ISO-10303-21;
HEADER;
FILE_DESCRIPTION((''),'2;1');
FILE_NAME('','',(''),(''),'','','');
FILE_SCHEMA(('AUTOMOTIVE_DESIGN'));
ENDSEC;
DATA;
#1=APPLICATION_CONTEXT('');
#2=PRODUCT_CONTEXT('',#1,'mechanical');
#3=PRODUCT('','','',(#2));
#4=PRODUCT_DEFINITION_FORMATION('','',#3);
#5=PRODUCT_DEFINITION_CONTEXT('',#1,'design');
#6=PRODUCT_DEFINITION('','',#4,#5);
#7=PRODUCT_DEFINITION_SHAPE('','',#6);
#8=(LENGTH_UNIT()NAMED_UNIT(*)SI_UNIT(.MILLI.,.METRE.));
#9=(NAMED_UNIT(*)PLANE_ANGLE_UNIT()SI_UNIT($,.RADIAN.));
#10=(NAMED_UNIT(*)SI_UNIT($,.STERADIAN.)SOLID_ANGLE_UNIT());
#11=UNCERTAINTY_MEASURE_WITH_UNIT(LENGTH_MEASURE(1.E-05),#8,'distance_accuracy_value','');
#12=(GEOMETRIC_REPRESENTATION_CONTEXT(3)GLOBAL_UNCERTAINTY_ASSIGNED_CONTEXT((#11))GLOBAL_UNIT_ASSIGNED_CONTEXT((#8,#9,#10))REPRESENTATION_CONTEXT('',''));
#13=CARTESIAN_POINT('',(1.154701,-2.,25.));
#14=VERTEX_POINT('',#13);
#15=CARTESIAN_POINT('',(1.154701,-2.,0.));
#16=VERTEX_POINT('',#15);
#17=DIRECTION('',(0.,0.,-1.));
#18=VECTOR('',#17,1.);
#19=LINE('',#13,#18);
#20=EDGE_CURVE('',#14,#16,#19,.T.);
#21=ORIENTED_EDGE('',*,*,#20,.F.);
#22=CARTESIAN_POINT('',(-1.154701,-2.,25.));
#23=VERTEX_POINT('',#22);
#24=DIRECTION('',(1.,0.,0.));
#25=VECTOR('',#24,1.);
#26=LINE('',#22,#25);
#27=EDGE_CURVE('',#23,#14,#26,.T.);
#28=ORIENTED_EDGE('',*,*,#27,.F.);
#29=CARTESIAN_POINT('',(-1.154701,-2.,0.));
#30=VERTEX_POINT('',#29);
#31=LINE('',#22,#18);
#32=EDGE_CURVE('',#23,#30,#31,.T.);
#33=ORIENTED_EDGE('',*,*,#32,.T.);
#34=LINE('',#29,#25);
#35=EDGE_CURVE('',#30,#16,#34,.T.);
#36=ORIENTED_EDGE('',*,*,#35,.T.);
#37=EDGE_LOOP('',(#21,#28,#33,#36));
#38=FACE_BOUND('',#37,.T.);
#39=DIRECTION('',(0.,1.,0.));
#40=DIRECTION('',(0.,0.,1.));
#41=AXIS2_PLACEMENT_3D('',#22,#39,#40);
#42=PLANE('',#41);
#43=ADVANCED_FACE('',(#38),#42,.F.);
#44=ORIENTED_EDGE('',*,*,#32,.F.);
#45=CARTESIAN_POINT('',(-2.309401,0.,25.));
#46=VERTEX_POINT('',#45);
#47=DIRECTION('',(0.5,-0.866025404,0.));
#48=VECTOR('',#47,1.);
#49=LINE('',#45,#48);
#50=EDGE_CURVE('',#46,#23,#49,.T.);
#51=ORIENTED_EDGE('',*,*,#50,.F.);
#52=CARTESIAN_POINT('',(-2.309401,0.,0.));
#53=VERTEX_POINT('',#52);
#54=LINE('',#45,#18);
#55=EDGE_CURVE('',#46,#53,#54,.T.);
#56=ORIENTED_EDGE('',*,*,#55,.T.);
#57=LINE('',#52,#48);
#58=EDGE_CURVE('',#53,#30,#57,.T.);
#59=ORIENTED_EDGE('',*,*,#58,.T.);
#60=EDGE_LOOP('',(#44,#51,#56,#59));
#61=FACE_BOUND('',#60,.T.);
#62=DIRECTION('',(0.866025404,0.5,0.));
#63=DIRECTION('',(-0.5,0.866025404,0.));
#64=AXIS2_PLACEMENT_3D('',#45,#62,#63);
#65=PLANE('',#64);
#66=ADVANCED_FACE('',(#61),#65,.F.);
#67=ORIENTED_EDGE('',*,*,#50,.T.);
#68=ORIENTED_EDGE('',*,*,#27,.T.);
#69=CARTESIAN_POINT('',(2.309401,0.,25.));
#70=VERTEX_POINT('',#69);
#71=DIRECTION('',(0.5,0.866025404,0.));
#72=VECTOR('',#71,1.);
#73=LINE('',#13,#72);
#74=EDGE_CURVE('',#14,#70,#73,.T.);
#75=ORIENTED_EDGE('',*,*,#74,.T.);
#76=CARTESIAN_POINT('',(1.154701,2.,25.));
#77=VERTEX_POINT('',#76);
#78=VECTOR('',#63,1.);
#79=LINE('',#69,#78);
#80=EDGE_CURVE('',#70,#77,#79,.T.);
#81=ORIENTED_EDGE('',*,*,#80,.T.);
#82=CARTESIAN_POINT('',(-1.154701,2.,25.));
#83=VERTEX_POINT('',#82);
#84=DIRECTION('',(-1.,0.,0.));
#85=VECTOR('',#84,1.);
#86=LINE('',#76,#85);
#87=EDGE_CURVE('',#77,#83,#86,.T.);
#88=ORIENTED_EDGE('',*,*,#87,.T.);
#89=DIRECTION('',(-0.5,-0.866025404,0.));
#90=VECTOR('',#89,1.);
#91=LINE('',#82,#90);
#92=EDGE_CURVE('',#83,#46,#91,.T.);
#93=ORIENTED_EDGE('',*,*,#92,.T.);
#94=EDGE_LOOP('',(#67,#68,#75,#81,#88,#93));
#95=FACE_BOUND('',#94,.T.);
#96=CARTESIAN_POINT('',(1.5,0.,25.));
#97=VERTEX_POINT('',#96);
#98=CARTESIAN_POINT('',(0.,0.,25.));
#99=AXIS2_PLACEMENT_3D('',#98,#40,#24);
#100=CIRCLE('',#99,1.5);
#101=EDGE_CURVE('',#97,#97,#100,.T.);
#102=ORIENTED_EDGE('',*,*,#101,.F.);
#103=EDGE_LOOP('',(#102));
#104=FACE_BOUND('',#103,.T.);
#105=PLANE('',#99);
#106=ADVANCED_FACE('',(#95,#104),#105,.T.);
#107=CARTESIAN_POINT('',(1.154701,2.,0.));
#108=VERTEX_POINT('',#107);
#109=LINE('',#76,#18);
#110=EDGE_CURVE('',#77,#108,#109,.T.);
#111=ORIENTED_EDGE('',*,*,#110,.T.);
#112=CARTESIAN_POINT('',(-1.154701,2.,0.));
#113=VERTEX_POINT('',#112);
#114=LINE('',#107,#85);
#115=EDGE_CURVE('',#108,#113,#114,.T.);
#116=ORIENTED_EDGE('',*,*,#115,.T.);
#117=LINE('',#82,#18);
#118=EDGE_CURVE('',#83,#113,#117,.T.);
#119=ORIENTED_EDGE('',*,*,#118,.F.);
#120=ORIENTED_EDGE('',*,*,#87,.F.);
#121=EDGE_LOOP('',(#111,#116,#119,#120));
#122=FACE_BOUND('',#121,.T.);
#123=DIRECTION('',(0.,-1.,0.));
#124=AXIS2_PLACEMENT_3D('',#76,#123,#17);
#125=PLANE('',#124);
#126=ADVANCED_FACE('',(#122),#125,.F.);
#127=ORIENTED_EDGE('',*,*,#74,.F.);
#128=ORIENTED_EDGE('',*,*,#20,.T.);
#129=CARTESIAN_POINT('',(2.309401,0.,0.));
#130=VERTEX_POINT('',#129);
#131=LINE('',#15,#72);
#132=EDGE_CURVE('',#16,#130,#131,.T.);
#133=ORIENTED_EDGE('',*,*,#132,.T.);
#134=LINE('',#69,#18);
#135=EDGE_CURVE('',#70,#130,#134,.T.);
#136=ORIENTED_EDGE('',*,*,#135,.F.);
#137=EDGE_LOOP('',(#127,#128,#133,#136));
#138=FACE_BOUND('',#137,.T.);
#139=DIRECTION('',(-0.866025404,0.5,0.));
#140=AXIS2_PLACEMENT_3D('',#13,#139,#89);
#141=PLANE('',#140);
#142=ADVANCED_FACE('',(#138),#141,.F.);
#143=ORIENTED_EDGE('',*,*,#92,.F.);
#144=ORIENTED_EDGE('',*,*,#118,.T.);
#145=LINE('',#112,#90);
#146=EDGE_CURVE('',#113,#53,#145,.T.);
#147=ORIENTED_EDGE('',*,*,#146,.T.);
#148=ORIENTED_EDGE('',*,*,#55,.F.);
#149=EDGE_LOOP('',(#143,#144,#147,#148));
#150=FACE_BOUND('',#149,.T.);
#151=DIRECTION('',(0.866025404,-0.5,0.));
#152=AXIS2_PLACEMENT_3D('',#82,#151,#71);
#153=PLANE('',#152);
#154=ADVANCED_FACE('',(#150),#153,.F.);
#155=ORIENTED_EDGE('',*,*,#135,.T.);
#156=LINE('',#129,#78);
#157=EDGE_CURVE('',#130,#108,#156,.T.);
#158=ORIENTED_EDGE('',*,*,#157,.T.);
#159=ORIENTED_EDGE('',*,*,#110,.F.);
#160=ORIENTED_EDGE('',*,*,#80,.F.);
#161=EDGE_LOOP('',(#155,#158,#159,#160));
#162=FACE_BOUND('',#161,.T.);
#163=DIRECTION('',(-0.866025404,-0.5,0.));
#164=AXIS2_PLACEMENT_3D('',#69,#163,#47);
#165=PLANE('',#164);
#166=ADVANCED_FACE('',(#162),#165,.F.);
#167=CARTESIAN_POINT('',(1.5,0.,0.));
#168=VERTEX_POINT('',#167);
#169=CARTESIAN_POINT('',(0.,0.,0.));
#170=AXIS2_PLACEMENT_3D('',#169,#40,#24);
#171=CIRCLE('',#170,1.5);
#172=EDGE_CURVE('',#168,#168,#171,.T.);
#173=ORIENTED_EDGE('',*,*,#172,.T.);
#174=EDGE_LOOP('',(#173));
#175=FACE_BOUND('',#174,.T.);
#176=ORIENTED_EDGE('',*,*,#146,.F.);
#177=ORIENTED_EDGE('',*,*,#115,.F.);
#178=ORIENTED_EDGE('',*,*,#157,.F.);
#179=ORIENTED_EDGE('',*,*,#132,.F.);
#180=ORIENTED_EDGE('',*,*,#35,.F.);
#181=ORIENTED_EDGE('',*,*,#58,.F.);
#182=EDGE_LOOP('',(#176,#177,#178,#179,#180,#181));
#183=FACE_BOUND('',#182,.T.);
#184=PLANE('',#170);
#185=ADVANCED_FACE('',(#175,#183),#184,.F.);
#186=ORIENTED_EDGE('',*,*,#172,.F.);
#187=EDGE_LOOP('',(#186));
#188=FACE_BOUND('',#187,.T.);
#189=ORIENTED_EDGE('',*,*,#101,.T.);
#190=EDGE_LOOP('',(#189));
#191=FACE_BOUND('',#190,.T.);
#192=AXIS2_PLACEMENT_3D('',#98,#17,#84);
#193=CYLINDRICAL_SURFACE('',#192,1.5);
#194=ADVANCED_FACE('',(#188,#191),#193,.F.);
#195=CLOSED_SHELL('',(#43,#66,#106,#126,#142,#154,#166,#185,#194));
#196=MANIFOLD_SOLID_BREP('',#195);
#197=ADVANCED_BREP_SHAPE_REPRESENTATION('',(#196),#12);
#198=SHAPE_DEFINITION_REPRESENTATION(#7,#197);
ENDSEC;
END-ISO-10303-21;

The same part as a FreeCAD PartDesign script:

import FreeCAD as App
import Part
import Sketcher

V = App.Vector
Q = App.Units.Quantity

doc = App.newDocument("Part")
body = doc.addObject("PartDesign::Body", "Body")

sketch1 = body.newObject("Sketcher::SketchObject", "Sketch")
sketch1.AttachmentSupport = (doc.getObject("XY_Plane"), [""])
sketch1.MapMode = "FlatFace"
sketch1.addGeometry([
    Part.LineSegment(V(2.3, 0, 0), V(1.2, 2, 0)),
    Part.LineSegment(V(1.2, 2, 0), V(-1.2, 2, 0)),
    Part.LineSegment(V(-1.2, 2, 0), V(-2.3, 0, 0)),
    Part.LineSegment(V(-2.3, 0, 0), V(-1.2, -2, 0)),
    Part.LineSegment(V(-1.2, -2, 0), V(1.2, -2, 0)),
    Part.LineSegment(V(1.2, -2, 0), V(2.3, 0, 0)),
    Part.Circle(V(0, 0, 0), V(0, 0, 1), 1.5),
], False)
sketch1.addConstraint([
    Sketcher.Constraint("Coincident", 0, 2, 1, 1),
    Sketcher.Constraint("Coincident", 1, 2, 2, 1),
    Sketcher.Constraint("Coincident", 2, 2, 3, 1),
    Sketcher.Constraint("Coincident", 3, 2, 4, 1),
    Sketcher.Constraint("Coincident", 4, 2, 5, 1),
    Sketcher.Constraint("Coincident", 5, 2, 0, 1),
    Sketcher.Constraint("Horizontal", 1),
    Sketcher.Constraint("Horizontal", 4),
    Sketcher.Constraint("Coincident", 6, 3, -1, 1),
    Sketcher.Constraint("Symmetric", 0, 2, 3, 2, -1, 1),
    Sketcher.Constraint("Symmetric", 2, 2, 5, 2, -1, 1),
    Sketcher.Constraint("PointOnObject", 2, 2, -1),
    Sketcher.Constraint("Parallel", 2, 5),
    Sketcher.Constraint("Vertical", 1, 2, 3, 2),
    Sketcher.Constraint("Diameter", 6, 3.0),
    Sketcher.Constraint("Angle", 0, Q("120 deg")),
    Sketcher.Constraint("DistanceY", -1, 1, 0, 2, 2.0),
    Sketcher.Constraint("DistanceX", 1, 2, 1, 1, 2.309401),
])
pad1 = body.newObject("PartDesign::Pad", "Pad")
pad1.Profile = sketch1
pad1.Length = 25

doc.recompute()
